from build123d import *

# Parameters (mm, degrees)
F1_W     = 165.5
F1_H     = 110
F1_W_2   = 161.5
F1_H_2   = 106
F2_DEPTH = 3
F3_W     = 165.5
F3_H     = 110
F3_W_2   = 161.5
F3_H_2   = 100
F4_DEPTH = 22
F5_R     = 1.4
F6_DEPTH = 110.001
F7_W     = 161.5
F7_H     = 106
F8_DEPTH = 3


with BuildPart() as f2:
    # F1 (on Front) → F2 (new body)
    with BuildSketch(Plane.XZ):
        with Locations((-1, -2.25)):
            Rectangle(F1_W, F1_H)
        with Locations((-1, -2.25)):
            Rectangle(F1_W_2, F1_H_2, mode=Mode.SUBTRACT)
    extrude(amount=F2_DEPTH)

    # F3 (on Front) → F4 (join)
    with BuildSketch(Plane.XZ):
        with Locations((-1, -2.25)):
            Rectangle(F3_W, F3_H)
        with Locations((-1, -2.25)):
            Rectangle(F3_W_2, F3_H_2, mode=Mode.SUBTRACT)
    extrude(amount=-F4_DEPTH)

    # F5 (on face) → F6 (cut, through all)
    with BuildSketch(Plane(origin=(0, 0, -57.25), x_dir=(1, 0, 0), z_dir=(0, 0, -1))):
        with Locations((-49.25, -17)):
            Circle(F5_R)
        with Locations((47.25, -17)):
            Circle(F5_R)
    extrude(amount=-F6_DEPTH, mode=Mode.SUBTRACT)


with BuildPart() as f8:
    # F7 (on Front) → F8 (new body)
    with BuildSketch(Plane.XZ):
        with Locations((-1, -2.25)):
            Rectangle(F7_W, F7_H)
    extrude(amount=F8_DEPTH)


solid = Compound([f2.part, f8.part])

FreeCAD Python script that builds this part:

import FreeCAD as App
import Part
import Sketcher

doc = App.newDocument("Part")
body = doc.addObject("PartDesign::Body", "Body")

# Sketch on XZ plane
sketch1 = body.newObject("Sketcher::SketchObject", "Sketch")
sketch1.AttachmentSupport = (doc.getObject("XZ_Plane"), [""])
sketch1.MapMode = "FlatFace"
sketch1.addGeometry([
    Part.LineSegment(App.Vector(-84, 53, 0), App.Vector(-84, -57, 0)),  # 0
    Part.LineSegment(App.Vector(-84, -57, 0), App.Vector(82, -57, 0)),  # 1
    Part.LineSegment(App.Vector(82, -57, 0), App.Vector(82, 53, 0)),  # 2
    Part.LineSegment(App.Vector(82, 53, 0), App.Vector(-84, 53, 0)),  # 3
    Part.LineSegment(App.Vector(80, -55, 0), App.Vector(-82, -55, 0)),  # 4
    Part.LineSegment(App.Vector(-82, -55, 0), App.Vector(-82, 51, 0)),  # 5
    Part.LineSegment(App.Vector(-82, 51, 0), App.Vector(80, 51, 0)),  # 6
    Part.LineSegment(App.Vector(80, 51, 0), App.Vector(80, -55, 0)),  # 7
], False)
sketch1.addConstraint([
    Sketcher.Constraint("Coincident", 0, 2, 1, 1),
    Sketcher.Constraint("Coincident", 1, 2, 2, 1),
    Sketcher.Constraint("Coincident", 2, 2, 3, 1),
    Sketcher.Constraint("Coincident", 3, 2, 0, 1),
    Sketcher.Constraint("Coincident", 4, 2, 5, 1),
    Sketcher.Constraint("Coincident", 5, 2, 6, 1),
    Sketcher.Constraint("Coincident", 6, 2, 7, 1),
    Sketcher.Constraint("Coincident", 7, 2, 4, 1),
    Sketcher.Constraint("Vertical", 0),
    Sketcher.Constraint("Horizontal", 1),
    Sketcher.Constraint("Vertical", 2),
    Sketcher.Constraint("Horizontal", 3),
    Sketcher.Constraint("Horizontal", 4),
    Sketcher.Constraint("Vertical", 5),
    Sketcher.Constraint("Horizontal", 6),
    Sketcher.Constraint("Vertical", 7),
    Sketcher.Constraint("DistanceY", 0, 2, 0, 1, 110.0),
    Sketcher.Constraint("DistanceY", 5, 1, 5, 2, 106.0),
    Sketcher.Constraint("DistanceX", 1, 1, 1, 2, 165.5),
    Sketcher.Constraint("DistanceX", 4, 2, 4, 1, 161.5),
    Sketcher.Constraint("DistanceX", 0, 2, 4, 2, 2.0),
    Sketcher.Constraint("DistanceY", 0, 2, 4, 2, 2.0),
    Sketcher.Constraint("DistanceX", 0, 2, -1, 1, 83.75),
    Sketcher.Constraint("DistanceY", 0, 2, -1, 1, 57.25),
])
pad1 = body.newObject("PartDesign::Pad", "Pad")
pad1.Profile = sketch1
pad1.Length = 3

# Sketch on XZ plane
sketch2 = body.newObject("Sketcher::SketchObject", "Sketch001")
sketch2.AttachmentSupport = (doc.getObject("XZ_Plane"), [""])
sketch2.MapMode = "FlatFace"
sketch2.addGeometry([
    Part.LineSegment(App.Vector(-84, 53, 0), App.Vector(-84, -57, 0)),  # 0
    Part.LineSegment(App.Vector(-84, -57, 0), App.Vector(82, -57, 0)),  # 1
    Part.LineSegment(App.Vector(82, -57, 0), App.Vector(82, 53, 0)),  # 2
    Part.LineSegment(App.Vector(82, 53, 0), App.Vector(-84, 53, 0)),  # 3
    Part.LineSegment(App.Vector(80, -52, 0), App.Vector(-82, -52, 0)),  # 4
    Part.LineSegment(App.Vector(-82, -52, 0), App.Vector(-82, 48, 0)),  # 5
    Part.LineSegment(App.Vector(-82, 48, 0), App.Vector(80, 48, 0)),  # 6
    Part.LineSegment(App.Vector(80, 48, 0), App.Vector(80, -52, 0)),  # 7
], False)
sketch2.addConstraint([
    Sketcher.Constraint("Coincident", 0, 2, 1, 1),
    Sketcher.Constraint("Coincident", 1, 2, 2, 1),
    Sketcher.Constraint("Coincident", 2, 2, 3, 1),
    Sketcher.Constraint("Coincident", 3, 2, 0, 1),
    Sketcher.Constraint("Coincident", 4, 2, 5, 1),
    Sketcher.Constraint("Coincident", 5, 2, 6, 1),
    Sketcher.Constraint("Coincident", 6, 2, 7, 1),
    Sketcher.Constraint("Coincident", 7, 2, 4, 1),
    Sketcher.Constraint("Vertical", 0),
    Sketcher.Constraint("Horizontal", 1),
    Sketcher.Constraint("Vertical", 2),
    Sketcher.Constraint("Horizontal", 3),
    Sketcher.Constraint("Horizontal", 4),
    Sketcher.Constraint("Vertical", 5),
    Sketcher.Constraint("Horizontal", 6),
    Sketcher.Constraint("Vertical", 7),
    Sketcher.Constraint("DistanceY", 0, 2, 0, 1, 110.0),
    Sketcher.Constraint("DistanceY", 5, 1, 5, 2, 100.0),
    Sketcher.Constraint("DistanceX", 1, 1, 1, 2, 165.5),
    Sketcher.Constraint("DistanceX", 4, 2, 4, 1, 161.5),
    Sketcher.Constraint("DistanceX", 0, 2, 4, 2, 2.0),
    Sketcher.Constraint("DistanceY", 0, 2, 4, 2, 5.0),
    Sketcher.Constraint("DistanceX", 0, 2, -1, 1, 83.75),
    Sketcher.Constraint("DistanceY", 0, 2, -1, 1, 57.25),
])
pad2 = body.newObject("PartDesign::Pad", "Pad001")
pad2.Profile = sketch2
pad2.Length = 22
pad2.Reversed = True

# Sketch on XY plane
sketch3 = body.newObject("Sketcher::SketchObject", "Sketch002")
sketch3.AttachmentSupport = (doc.getObject("XY_Plane"), [""])
sketch3.MapMode = "FlatFace"
sketch3.AttachmentOffset = App.Placement(App.Vector(0, 0, -57.25), App.Rotation())
sketch3.addGeometry([
    Part.Circle(App.Vector(-49.2, 17, 0), App.Vector(0, 0, 1), 1.4),
    Part.Circle(App.Vector(47.2, 17, 0), App.Vector(0, 0, 1), 1.4),
], False)
sketch3.addConstraint([
    Sketcher.Constraint("Equal", 0, 1),
    Sketcher.Constraint("Horizontal", 0, 3, 1, 3),
    Sketcher.Constraint("Diameter", 0, 2.8),
    Sketcher.Constraint("DistanceY", -1, 1, 0, 3, 17.0),
    Sketcher.Constraint("DistanceX", 0, 3, 1, 3, 96.5),
    Sketcher.Constraint("DistanceX", 0, 3, -1, 1, 49.25),
])
pocket1 = body.newObject("PartDesign::Pocket", "Pocket")
pocket1.Profile = sketch3
pocket1.Type = "ThroughAll"
pocket1.Reversed = True
body2 = doc.addObject("PartDesign::Body", "Body001")

# Sketch on XZ plane
sketch4 = body2.newObject("Sketcher::SketchObject", "Sketch003")
sketch4.AttachmentSupport = (doc.getObject("XZ_Plane001"), [""])
sketch4.MapMode = "FlatFace"
sketch4.addGeometry([
    Part.LineSegment(App.Vector(-82, 51, 0), App.Vector(-82, -55, 0)),
    Part.LineSegment(App.Vector(-82, -55, 0), App.Vector(80, -55, 0)),
    Part.LineSegment(App.Vector(80, -55, 0), App.Vector(80, 51, 0)),
    Part.LineSegment(App.Vector(80, 51, 0), App.Vector(-82, 51, 0)),
], False)
sketch4.addConstraint([
    Sketcher.Constraint("Coincident", 0, 2, 1, 1),
    Sketcher.Constraint("Coincident", 1, 2, 2, 1),
    Sketcher.Constraint("Coincident", 2, 2, 3, 1),
    Sketcher.Constraint("Coincident", 3, 2, 0, 1),
    Sketcher.Constraint("Vertical", 0),
    Sketcher.Constraint("Horizontal", 1),
    Sketcher.Constraint("Vertical", 2),
    Sketcher.Constraint("Horizontal", 3),
    Sketcher.Constraint("DistanceY", 0, 2, 0, 1, 106.0),
    Sketcher.Constraint("DistanceX", 1, 1, 1, 2, 161.5),
    Sketcher.Constraint("DistanceX", 0, 2, -1, 1, 81.75),
    Sketcher.Constraint("DistanceY", 0, 2, -1, 1, 55.25),
])
pad3 = body2.newObject("PartDesign::Pad", "Pad002")
pad3.Profile = sketch4
pad3.Length = 3

doc.recompute()
